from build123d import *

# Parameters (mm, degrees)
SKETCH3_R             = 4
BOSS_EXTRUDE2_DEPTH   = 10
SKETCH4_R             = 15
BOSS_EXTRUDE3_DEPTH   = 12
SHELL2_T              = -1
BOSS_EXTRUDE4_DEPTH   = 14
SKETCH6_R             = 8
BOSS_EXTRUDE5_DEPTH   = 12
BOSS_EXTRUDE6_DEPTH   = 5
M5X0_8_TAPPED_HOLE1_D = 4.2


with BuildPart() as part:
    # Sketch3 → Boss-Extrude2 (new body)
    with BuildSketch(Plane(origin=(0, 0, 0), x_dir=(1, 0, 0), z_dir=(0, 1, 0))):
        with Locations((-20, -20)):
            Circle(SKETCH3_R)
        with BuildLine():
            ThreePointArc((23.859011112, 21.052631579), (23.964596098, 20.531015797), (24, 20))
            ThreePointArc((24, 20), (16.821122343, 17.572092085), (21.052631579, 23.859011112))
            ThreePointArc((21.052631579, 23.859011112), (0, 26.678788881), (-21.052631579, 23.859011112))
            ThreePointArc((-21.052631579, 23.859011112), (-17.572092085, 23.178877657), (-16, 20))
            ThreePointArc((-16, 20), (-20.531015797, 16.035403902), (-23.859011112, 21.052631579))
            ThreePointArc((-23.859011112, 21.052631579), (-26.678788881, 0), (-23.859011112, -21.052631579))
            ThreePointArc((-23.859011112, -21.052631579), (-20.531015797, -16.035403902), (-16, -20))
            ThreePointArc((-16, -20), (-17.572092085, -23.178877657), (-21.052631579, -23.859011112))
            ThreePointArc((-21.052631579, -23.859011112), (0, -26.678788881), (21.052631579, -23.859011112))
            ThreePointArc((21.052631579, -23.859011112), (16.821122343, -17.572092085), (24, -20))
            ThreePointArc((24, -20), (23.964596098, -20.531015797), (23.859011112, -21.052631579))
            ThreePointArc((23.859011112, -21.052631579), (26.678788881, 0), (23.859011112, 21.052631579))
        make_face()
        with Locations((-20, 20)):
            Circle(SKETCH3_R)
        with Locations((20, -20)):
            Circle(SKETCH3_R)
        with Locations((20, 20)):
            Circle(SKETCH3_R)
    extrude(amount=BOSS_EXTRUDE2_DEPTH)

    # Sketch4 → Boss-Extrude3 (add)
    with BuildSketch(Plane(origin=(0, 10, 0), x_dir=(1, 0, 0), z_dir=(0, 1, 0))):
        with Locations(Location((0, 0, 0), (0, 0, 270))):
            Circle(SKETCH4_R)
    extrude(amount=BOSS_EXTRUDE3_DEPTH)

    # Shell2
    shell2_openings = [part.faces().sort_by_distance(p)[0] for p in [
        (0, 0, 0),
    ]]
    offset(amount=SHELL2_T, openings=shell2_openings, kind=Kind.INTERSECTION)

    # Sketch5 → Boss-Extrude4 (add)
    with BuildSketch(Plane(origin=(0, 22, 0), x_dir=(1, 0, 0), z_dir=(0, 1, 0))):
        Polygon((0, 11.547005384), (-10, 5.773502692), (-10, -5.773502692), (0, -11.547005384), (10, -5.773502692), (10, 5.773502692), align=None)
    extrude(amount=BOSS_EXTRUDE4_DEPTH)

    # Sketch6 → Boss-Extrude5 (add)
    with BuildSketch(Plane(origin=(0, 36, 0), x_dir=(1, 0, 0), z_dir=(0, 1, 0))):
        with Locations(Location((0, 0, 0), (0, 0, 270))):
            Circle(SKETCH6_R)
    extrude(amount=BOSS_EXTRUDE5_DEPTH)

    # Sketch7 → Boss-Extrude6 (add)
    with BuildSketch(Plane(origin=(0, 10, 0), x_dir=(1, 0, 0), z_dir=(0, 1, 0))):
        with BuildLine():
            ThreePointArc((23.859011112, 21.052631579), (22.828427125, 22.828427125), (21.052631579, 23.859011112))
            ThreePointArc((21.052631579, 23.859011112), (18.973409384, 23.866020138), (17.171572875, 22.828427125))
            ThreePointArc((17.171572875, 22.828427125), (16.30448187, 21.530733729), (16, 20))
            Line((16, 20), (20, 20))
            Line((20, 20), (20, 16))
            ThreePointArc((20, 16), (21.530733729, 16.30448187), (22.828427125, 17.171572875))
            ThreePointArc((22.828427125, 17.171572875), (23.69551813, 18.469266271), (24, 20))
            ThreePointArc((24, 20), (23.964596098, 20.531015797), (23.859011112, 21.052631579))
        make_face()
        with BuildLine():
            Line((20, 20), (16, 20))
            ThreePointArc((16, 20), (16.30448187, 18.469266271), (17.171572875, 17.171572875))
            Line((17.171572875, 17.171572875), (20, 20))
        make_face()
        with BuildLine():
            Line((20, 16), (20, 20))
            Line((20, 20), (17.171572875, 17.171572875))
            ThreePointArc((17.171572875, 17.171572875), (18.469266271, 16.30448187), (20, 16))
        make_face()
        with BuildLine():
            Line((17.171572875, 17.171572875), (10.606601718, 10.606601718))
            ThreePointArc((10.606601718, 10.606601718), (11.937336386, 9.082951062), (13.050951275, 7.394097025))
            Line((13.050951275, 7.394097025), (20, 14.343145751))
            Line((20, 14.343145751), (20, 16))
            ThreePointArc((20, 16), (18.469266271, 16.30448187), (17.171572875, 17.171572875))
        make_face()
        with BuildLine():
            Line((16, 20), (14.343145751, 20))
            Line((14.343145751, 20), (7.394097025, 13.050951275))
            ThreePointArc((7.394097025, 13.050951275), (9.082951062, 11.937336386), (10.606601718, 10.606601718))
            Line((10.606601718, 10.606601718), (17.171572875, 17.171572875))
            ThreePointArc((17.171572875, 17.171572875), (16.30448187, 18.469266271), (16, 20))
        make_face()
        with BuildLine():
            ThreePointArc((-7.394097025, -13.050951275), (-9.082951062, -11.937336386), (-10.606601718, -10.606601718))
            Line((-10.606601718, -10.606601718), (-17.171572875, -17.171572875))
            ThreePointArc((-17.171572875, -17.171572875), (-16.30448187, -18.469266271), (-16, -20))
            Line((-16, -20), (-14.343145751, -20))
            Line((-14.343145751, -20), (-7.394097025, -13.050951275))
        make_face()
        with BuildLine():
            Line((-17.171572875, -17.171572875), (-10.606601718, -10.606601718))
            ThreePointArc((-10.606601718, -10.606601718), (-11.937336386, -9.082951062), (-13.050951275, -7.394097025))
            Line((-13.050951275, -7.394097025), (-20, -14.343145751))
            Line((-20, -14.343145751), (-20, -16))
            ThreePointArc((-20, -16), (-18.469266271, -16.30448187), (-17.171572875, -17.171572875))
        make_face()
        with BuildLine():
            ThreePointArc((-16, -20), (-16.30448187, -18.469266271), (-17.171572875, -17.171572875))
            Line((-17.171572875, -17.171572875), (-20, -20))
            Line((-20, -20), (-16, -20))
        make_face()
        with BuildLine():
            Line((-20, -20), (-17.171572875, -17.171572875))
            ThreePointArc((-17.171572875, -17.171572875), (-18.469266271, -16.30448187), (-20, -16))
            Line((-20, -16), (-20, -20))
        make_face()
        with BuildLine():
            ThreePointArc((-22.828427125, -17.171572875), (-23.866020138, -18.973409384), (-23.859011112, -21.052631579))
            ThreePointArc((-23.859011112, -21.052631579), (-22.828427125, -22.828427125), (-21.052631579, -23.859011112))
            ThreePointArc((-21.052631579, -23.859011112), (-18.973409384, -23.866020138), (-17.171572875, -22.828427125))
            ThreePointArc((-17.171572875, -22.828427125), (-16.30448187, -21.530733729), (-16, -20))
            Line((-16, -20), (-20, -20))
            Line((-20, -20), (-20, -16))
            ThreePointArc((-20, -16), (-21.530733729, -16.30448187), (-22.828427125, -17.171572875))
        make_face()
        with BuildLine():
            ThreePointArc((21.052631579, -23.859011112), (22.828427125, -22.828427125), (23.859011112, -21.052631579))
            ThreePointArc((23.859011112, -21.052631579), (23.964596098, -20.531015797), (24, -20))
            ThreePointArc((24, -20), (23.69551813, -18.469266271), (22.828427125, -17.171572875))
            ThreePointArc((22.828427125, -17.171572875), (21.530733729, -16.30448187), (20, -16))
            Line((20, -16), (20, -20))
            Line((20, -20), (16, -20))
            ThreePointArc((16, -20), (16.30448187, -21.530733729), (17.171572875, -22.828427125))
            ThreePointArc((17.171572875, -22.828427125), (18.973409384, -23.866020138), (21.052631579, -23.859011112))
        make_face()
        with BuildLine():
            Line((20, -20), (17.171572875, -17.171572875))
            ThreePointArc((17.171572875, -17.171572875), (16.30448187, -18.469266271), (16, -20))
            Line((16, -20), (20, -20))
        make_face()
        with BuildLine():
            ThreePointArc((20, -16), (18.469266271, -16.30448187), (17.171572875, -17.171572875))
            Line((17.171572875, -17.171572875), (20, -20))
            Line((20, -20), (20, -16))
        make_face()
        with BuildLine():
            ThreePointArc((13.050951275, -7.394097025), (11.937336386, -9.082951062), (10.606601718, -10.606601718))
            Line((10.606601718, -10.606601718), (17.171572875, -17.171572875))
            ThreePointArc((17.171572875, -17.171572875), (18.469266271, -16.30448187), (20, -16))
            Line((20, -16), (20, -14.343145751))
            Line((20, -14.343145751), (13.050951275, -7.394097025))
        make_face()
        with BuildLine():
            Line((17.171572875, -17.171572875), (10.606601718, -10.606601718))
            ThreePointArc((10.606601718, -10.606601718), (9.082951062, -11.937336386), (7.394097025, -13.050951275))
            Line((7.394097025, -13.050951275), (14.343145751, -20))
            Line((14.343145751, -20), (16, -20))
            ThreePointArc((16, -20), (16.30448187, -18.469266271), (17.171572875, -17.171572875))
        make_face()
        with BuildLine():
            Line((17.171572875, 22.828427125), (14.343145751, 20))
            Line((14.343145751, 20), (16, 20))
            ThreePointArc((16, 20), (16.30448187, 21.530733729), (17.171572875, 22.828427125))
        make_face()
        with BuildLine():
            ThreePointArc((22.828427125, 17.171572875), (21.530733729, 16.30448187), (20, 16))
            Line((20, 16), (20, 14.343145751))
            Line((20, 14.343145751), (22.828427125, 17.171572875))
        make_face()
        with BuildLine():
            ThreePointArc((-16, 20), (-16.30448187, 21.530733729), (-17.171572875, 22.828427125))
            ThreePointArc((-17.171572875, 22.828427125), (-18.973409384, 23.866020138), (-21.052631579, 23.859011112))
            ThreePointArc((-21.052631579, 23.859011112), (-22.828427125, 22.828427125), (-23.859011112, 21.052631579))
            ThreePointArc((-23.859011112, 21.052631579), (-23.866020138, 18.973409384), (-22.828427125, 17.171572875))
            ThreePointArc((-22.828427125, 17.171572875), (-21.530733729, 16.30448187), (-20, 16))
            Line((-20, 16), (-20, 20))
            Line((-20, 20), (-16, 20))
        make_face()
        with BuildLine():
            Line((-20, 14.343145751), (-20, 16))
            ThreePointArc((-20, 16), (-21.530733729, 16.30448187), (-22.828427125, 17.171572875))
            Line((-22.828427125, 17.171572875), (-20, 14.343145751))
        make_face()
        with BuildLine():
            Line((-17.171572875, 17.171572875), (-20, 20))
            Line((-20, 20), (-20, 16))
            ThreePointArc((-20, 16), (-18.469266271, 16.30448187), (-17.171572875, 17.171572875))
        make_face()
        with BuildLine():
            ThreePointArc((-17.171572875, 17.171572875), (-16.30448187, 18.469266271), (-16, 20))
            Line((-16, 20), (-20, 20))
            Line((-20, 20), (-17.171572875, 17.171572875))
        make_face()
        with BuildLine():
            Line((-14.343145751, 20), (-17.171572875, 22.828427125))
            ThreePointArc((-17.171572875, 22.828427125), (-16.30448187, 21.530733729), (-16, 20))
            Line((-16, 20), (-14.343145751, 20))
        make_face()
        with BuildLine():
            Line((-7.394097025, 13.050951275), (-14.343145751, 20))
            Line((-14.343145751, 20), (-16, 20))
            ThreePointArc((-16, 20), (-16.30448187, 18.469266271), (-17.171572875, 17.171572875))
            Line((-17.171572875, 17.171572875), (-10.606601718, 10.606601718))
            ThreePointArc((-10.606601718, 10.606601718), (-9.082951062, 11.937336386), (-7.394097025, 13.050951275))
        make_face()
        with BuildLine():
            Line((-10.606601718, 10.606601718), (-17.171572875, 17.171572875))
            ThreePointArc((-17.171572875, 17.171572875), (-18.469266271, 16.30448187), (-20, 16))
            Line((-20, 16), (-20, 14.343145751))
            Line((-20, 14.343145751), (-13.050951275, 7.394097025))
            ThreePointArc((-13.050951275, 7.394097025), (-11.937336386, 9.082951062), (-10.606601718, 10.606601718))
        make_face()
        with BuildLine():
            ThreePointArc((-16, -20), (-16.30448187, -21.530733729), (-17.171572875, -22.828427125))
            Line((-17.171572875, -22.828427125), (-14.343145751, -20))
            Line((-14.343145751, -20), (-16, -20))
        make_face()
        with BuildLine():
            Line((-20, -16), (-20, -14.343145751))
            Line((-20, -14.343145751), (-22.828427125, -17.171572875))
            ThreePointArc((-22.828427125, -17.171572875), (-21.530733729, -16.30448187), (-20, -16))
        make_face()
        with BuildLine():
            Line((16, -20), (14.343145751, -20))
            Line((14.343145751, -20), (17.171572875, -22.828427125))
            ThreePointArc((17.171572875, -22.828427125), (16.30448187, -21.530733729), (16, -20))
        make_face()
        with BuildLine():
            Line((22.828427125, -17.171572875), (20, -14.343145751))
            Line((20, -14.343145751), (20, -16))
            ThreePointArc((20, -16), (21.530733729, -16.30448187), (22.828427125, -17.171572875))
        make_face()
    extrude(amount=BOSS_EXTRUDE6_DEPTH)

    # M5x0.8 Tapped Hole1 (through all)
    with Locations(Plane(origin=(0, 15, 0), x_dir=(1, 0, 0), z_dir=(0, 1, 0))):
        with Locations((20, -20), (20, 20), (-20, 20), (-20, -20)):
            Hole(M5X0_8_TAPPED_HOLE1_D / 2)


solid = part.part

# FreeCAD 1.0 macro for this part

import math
import FreeCAD as App
import Part
import Sketcher

V = App.Vector
Q = App.Units.Quantity


def faces_at(feature, points):
    """Names of the faces that lie closest to the given points."""
    faces = feature.Shape.Faces
    near = lambda p: min(range(len(faces)), key=lambda i: faces[i].distToShape(Part.Vertex(*p))[0])
    return sorted({f"Face{near(p) + 1}" for p in points})


def add_polygon(sketch, points):
    """Adds a closed chain of lines whose ends are joined by coincident constraints."""
    first, n = sketch.GeometryCount, len(points)
    for a, b in zip(points, points[1:] + points[:1]):
        sketch.addGeometry(Part.LineSegment(App.Vector(*a, 0), App.Vector(*b, 0)), False)
    for i in range(n):
        sketch.addConstraint(Sketcher.Constraint("Coincident", first + i, 2, first + (i + 1) % n, 1))

doc = App.newDocument("Part")
params = doc.addObject("Spreadsheet::Sheet", "Params")
for row, (alias, value) in enumerate([
    ("sketch1_radius", "4 mm"),
    ("sketch1_radius2", "80 mm"),
    ("pad1_length", "10 mm"),
    ("sketch2_diameter", "30 mm"),
    ("pad2_length", "12 mm"),
    ("thickness_wall", "1 mm"),
    ("pad3_length", "14 mm"),
    ("sketch4_diameter", "16 mm"),
    ("pad4_length", "12 mm"),
    ("sketch5_radius", "4 mm"),
    ("sketch5_radius2", "15 mm"),
    ("pad5_length", "5 mm"),
    ("sketch6_diameter", "4.2 mm"),
    ("hole_diameter", "4.2 mm"),
], start=1):
    params.set(f"A{row}", alias)
    params.set(f"B{row}", "=" + value)
    params.setAlias(f"B{row}", alias)

body = doc.addObject("PartDesign::Body", "Body")

# Sketch on XZ plane
sketch1 = body.newObject("Sketcher::SketchObject", "Sketch")
sketch1.AttachmentSupport = (doc.getObject("XZ_Plane"), [""])
sketch1.MapMode = "FlatFace"
sketch1.addGeometry(Part.ArcOfCircle(Part.Circle(V(-20, 20, 0), V(0, 0, 1), 4), math.radians(105.257523), math.radians(164.742477)), False)
sketch1.addGeometry(Part.ArcOfCircle(Part.Circle(V(0, -53.321211, 0), V(0, 0, 1), 80), math.radians(74.742477), math.radians(105.257523)), False)
sketch1.addGeometry(Part.ArcOfCircle(Part.Circle(V(20, 20, 0), V(0, 0, 1), 4), math.radians(15.257523), math.radians(74.742477)), False)
sketch1.addGeometry(Part.ArcOfCircle(Part.Circle(V(-53.321211, 0, 0), V(0, 0, 1), 80), math.radians(-15.257523), math.radians(15.257523)), False)
sketch1.addGeometry(Part.ArcOfCircle(Part.Circle(V(20, -20, 0), V(0, 0, 1), 4), math.radians(-74.742477), math.radians(-15.257523)), False)
sketch1.addGeometry(Part.ArcOfCircle(Part.Circle(V(0, 53.321211, 0), V(0, 0, 1), 80), math.radians(-105.257523), math.radians(-74.742477)), False)
sketch1.addGeometry(Part.ArcOfCircle(Part.Circle(V(-20, -20, 0), V(0, 0, 1), 4), math.radians(-164.742477), math.radians(-105.257523)), False)
sketch1.addGeometry(Part.ArcOfCircle(Part.Circle(V(53.321211, 0, 0), V(0, 0, 1), 80), math.radians(164.742477), math.radians(195.257523)), False)
sketch1.addConstraint(Sketcher.Constraint("Tangent", 0, 1, 1, 2))
sketch1.addConstraint(Sketcher.Constraint("Tangent", 1, 1, 2, 2))
sketch1.addConstraint(Sketcher.Constraint("Tangent", 2, 1, 3, 2))
sketch1.addConstraint(Sketcher.Constraint("Tangent", 3, 1, 4, 2))
sketch1.addConstraint(Sketcher.Constraint("Tangent", 4, 1, 5, 2))
sketch1.addConstraint(Sketcher.Constraint("Tangent", 5, 1, 6, 2))
sketch1.addConstraint(Sketcher.Constraint("Tangent", 6, 1, 7, 2))
sketch1.addConstraint(Sketcher.Constraint("Tangent", 7, 1, 0, 2))
sketch1.addConstraint(Sketcher.Constraint("Equal", 0, 2))
sketch1.addConstraint(Sketcher.Constraint("Equal", 1, 3))
sketch1.addConstraint(Sketcher.Constraint("Equal", 2, 4))
sketch1.addConstraint(Sketcher.Constraint("Equal", 3, 5))
sketch1.addConstraint(Sketcher.Constraint("Equal", 4, 6))
sketch1.addConstraint(Sketcher.Constraint("Equal", 5, 7))
sketch1.addConstraint(Sketcher.Constraint("Symmetric", 0, 3, 4, 3, -1, 1))
sketch1.addConstraint(Sketcher.Constraint("Symmetric", 2, 3, 6, 3, -1, 1))
sketch1.addConstraint(Sketcher.Constraint("Symmetric", 0, 3, 2, 3, -2))
sketch1.addConstraint(Sketcher.Constraint("Radius", 0, 4.0))
sketch1.addConstraint(Sketcher.Constraint("Radius", 1, 80.0))
sketch1.addConstraint(Sketcher.Constraint("DistanceX", 0, 3, -1, 1, 20.0))
sketch1.addConstraint(Sketcher.Constraint("DistanceY", -1, 1, 0, 3, 20.0))
sketch1.setExpression("Constraints[17]", "Params.sketch1_radius")
sketch1.setExpression("Constraints[18]", "Params.sketch1_radius2")
pad1 = body.newObject("PartDesign::Pad", "Pad")
pad1.Profile = sketch1
pad1.setExpression("Length", "Params.pad1_length")
pad1.Reversed = True

# Sketch on XZ plane
sketch2 = body.newObject("Sketcher::SketchObject", "Sketch001")
sketch2.AttachmentSupport = (doc.getObject("XZ_Plane"), [""])
sketch2.MapMode = "FlatFace"
sketch2.AttachmentOffset = App.Placement(V(0, 0, -10), App.Rotation())
sketch2.addGeometry(Part.Circle(V(0, 0, 0), V(0, 0, 1), 15), False)
sketch2.addConstraint(Sketcher.Constraint("Coincident", 0, 3, -1, 1))
sketch2.addConstraint(Sketcher.Constraint("Diameter", 0, 30.0))
sketch2.setExpression("Constraints[1]", "Params.sketch2_diameter")
pad2 = body.newObject("PartDesign::Pad", "Pad001")
pad2.Profile = sketch2
pad2.setExpression("Length", "Params.pad2_length")
pad2.Reversed = True
doc.recompute()

thickness = body.newObject("PartDesign::Thickness", "Thickness")
thickness.Base = (pad2, faces_at(pad2, [(0, 0, 0)]))
thickness.setExpression("Value", "Params.thickness_wall")
thickness.Reversed = True
thickness.Join = "Intersection"

# Sketch on XZ plane
sketch3 = body.newObject("Sketcher::SketchObject", "Sketch002")
sketch3.AttachmentSupport = (doc.getObject("XZ_Plane"), [""])
sketch3.MapMode = "FlatFace"
sketch3.AttachmentOffset = App.Placement(V(0, 0, -22), App.Rotation())
add_polygon(sketch3, [(0, -11.547005), (-10, -5.773503), (-10, 5.773503), (0, 11.547005), (10, 5.773503), (10, -5.773503)])  # lines 0-5
sketch3.addConstraint(Sketcher.Constraint("Vertical", 1))
sketch3.addConstraint(Sketcher.Constraint("Vertical", 4))
sketch3.addConstraint(Sketcher.Constraint("Symmetric", 0, 2, 3, 2, -1, 1))
sketch3.addConstraint(Sketcher.Constraint("Symmetric", 2, 2, 5, 2, -1, 1))
sketch3.addConstraint(Sketcher.Constraint("PointOnObject", 2, 2, -2))
sketch3.addConstraint(Sketcher.Constraint("Parallel", 2, 5))
sketch3.addConstraint(Sketcher.Constraint("Horizontal", 1, 2, 3, 2))
sketch3.addConstraint(Sketcher.Constraint("Angle", 0, Q("150 deg")))
sketch3.addConstraint(Sketcher.Constraint("DistanceX", 0, 2, -1, 1, 10.0))
sketch3.addConstraint(Sketcher.Constraint("DistanceY", 1, 1, 1, 2, 11.547005))
pad3 = body.newObject("PartDesign::Pad", "Pad002")
pad3.Profile = sketch3
pad3.setExpression("Length", "Params.pad3_length")
pad3.Reversed = True

# Sketch on XZ plane
sketch4 = body.newObject("Sketcher::SketchObject", "Sketch003")
sketch4.AttachmentSupport = (doc.getObject("XZ_Plane"), [""])
sketch4.MapMode = "FlatFace"
sketch4.AttachmentOffset = App.Placement(V(0, 0, -36), App.Rotation())
sketch4.addGeometry(Part.Circle(V(0, 0, 0), V(0, 0, 1), 8), False)
sketch4.addConstraint(Sketcher.Constraint("Coincident", 0, 3, -1, 1))
sketch4.addConstraint(Sketcher.Constraint("Diameter", 0, 16.0))
sketch4.setExpression("Constraints[1]", "Params.sketch4_diameter")
pad4 = body.newObject("PartDesign::Pad", "Pad003")
pad4.Profile = sketch4
pad4.setExpression("Length", "Params.pad4_length")
pad4.Reversed = True

# Sketch on XZ plane
sketch5 = body.newObject("Sketcher::SketchObject", "Sketch004")
sketch5.AttachmentSupport = (doc.getObject("XZ_Plane"), [""])
sketch5.MapMode = "FlatFace"
sketch5.AttachmentOffset = App.Placement(V(0, 0, -10), App.Rotation())
sketch5.addGeometry(Part.ArcOfCircle(Part.Circle(V(20, -20, 0), V(0, 0, 1), 4), math.radians(-74.742477), math.radians(-15.257523)), False)
sketch5.addGeometry(Part.ArcOfCircle(Part.Circle(V(20, -20, 0), V(0, 0, 1), 4), math.radians(-135), math.radians(-74.742477)), False)
sketch5.addGeometry(Part.LineSegment(V(17.171573, -22.828427, 0), V(14.343146, -20, 0)), False)
sketch5.addGeometry(Part.LineSegment(V(14.343146, -20, 0), V(7.394097, -13.050951, 0)), False)
sketch5.addGeometry(Part.ArcOfCircle(Part.Circle(V(0, 0, 0), V(0, 0, 1), 15), math.radians(-60.46601), math.radians(-45)), False)
sketch5.addGeometry(Part.ArcOfCircle(Part.Circle(V(0, 0, 0), V(0, 0, 1), 15), math.radians(-45), math.radians(-29.53399)), False)
sketch5.addGeometry(Part.LineSegment(V(13.050951, -7.394097, 0), V(20, -14.343146, 0)), False)
sketch5.addGeometry(Part.LineSegment(V(20, -14.343146, 0), V(22.828427, -17.171573, 0)), False)
sketch5.addGeometry(Part.ArcOfCircle(Part.Circle(V(20, -20, 0), V(0, 0, 1), 4), math.radians(0), math.radians(45)), False)
sketch5.addGeometry(Part.ArcOfCircle(Part.Circle(V(20, -20, 0), V(0, 0, 1), 4), math.radians(-15.257523), math.radians(0)), False)
sketch5.addGeometry(Part.ArcOfCircle(Part.Circle(V(0, 0, 0), V(0, 0, 1), 15), math.radians(119.53399), math.radians(135)), False)
sketch5.addGeometry(Part.ArcOfCircle(Part.Circle(V(0, 0, 0), V(0, 0, 1), 15), math.radians(135), math.radians(150.46601)), False)
sketch5.addGeometry(Part.LineSegment(V(-13.050951, 7.394097, 0), V(-20, 14.343146, 0)), False)
sketch5.addGeometry(Part.LineSegment(V(-20, 14.343146, 0), V(-22.828427, 17.171573, 0)), False)
sketch5.addGeometry(Part.ArcOfCircle(Part.Circle(V(-20, 20, 0), V(0, 0, 1), 4), math.radians(164.742477), math.radians(225)), False)
sketch5.addGeometry(Part.ArcOfCircle(Part.Circle(V(-20, 20, 0), V(0, 0, 1), 4), math.radians(105.257523), math.radians(164.742477)), False)
sketch5.addGeometry(Part.ArcOfCircle(Part.Circle(V(-20, 20, 0), V(0, 0, 1), 4), math.radians(45), math.radians(105.257523)), False)
sketch5.addGeometry(Part.LineSegment(V(-17.171573, 22.828427, 0), V(-14.343146, 20, 0)), False)
sketch5.addGeometry(Part.LineSegment(V(-14.343146, 20, 0), V(-7.394097, 13.050951, 0)), False)
sketch5.addGeometry(Part.ArcOfCircle(Part.Circle(V(20, 20, 0), V(0, 0, 1), 4), math.radians(15.257523), math.radians(74.742477)), False)
sketch5.addGeometry(Part.ArcOfCircle(Part.Circle(V(20, 20, 0), V(0, 0, 1), 4), math.radians(0), math.radians(15.257523)), False)
sketch5.addGeometry(Part.ArcOfCircle(Part.Circle(V(20, 20, 0), V(0, 0, 1), 4), math.radians(-45), math.radians(0)), False)
sketch5.addGeometry(Part.LineSegment(V(22.828427, 17.171573, 0), V(20, 14.343146, 0)), False)
sketch5.addGeometry(Part.LineSegment(V(20, 14.343146, 0), V(13.050951, 7.394097, 0)), False)
sketch5.addGeometry(Part.ArcOfCircle(Part.Circle(V(0, 0, 0), V(0, 0, 1), 15), math.radians(29.53399), math.radians(45)), False)
sketch5.addGeometry(Part.ArcOfCircle(Part.Circle(V(0, 0, 0), V(0, 0, 1), 15), math.radians(45), math.radians(60.46601)), False)
sketch5.addGeometry(Part.LineSegment(V(7.394097, 13.050951, 0), V(14.343146, 20, 0)), False)
sketch5.addGeometry(Part.LineSegment(V(14.343146, 20, 0), V(17.171573, 22.828427, 0)), False)
sketch5.addGeometry(Part.ArcOfCircle(Part.Circle(V(20, 20, 0), V(0, 0, 1), 4), math.radians(74.742477), math.radians(135)), False)
sketch5.addGeometry(Part.ArcOfCircle(Part.Circle(V(-20, -20, 0), V(0, 0, 1), 4), math.radians(-105.257523), math.radians(-45)), False)
sketch5.addGeometry(Part.ArcOfCircle(Part.Circle(V(-20, -20, 0), V(0, 0, 1), 4), math.radians(-164.742477), math.radians(-105.257523)), False)
sketch5.addGeometry(Part.ArcOfCircle(Part.Circle(V(-20, -20, 0), V(0, 0, 1), 4), math.radians(135), math.radians(195.257523)), False)
sketch5.addGeometry(Part.LineSegment(V(-22.828427, -17.171573, 0), V(-20, -14.343146, 0)), False)
sketch5.addGeometry(Part.LineSegment(V(-20, -14.343146, 0), V(-13.050951, -7.394097, 0)), False)
sketch5.addGeometry(Part.ArcOfCircle(Part.Circle(V(0, 0, 0), V(0, 0, 1), 15), math.radians(-150.46601), math.radians(-135)), False)
sketch5.addGeometry(Part.ArcOfCircle(Part.Circle(V(0, 0, 0), V(0, 0, 1), 15), math.radians(-135), math.radians(-119.53399)), False)
sketch5.addGeometry(Part.LineSegment(V(-7.394097, -13.050951, 0), V(-14.343146, -20, 0)), False)
sketch5.addGeometry(Part.LineSegment(V(-14.343146, -20, 0), V(-17.171573, -22.828427, 0)), False)
sketch5.addConstraint(Sketcher.Constraint("Tangent", 0, 1, 1, 2))
sketch5.addConstraint(Sketcher.Constraint("Tangent", 1, 1, 2, 1))
sketch5.addConstraint(Sketcher.Constraint("Coincident", 2, 2, 3, 1))
sketch5.addConstraint(Sketcher.Constraint("Coincident", 3, 2, 4, 1))
sketch5.addConstraint(Sketcher.Constraint("Tangent", 4, 2, 5, 1))
sketch5.addConstraint(Sketcher.Constraint("Coincident", 5, 2, 6, 1))
sketch5.addConstraint(Sketcher.Constraint("Coincident", 6, 2, 7, 1))
sketch5.addConstraint(Sketcher.Constraint("Tangent", 7, 2, 8, 2))
sketch5.addConstraint(Sketcher.Constraint("Tangent", 8, 1, 9, 2))
sketch5.addConstraint(Sketcher.Constraint("Tangent", 9, 1, 0, 2))
sketch5.addConstraint(Sketcher.Constraint("Tangent", 10, 2, 11, 1))
sketch5.addConstraint(Sketcher.Constraint("Coincident", 11, 2, 12, 1))
sketch5.addConstraint(Sketcher.Constraint("Coincident", 12, 2, 13, 1))
sketch5.addConstraint(Sketcher.Constraint("Tangent", 13, 2, 14, 2))
sketch5.addConstraint(Sketcher.Constraint("Tangent", 14, 1, 15, 2))
sketch5.addConstraint(Sketcher.Constraint("Tangent", 15, 1, 16, 2))
sketch5.addConstraint(Sketcher.Constraint("Tangent", 16, 1, 17, 1))
sketch5.addConstraint(Sketcher.Constraint("Coincident", 17, 2, 18, 1))
sketch5.addConstraint(Sketcher.Constraint("Coincident", 18, 2, 10, 1))
sketch5.addConstraint(Sketcher.Constraint("Tangent", 19, 1, 20, 2))
sketch5.addConstraint(Sketcher.Constraint("Tangent", 20, 1, 21, 2))
sketch5.addConstraint(Sketcher.Constraint("Tangent", 21, 1, 22, 1))
sketch5.addConstraint(Sketcher.Constraint("Coincident", 22, 2, 23, 1))
sketch5.addConstraint(Sketcher.Constraint("Coincident", 23, 2, 24, 1))
sketch5.addConstraint(Sketcher.Constraint("Tangent", 24, 2, 25, 1))
sketch5.addConstraint(Sketcher.Constraint("Coincident", 25, 2, 26, 1))
sketch5.addConstraint(Sketcher.Constraint("Coincident", 26, 2, 27, 1))
sketch5.addConstraint(Sketcher.Constraint("Tangent", 27, 2, 28, 2))
sketch5.addConstraint(Sketcher.Constraint("Tangent", 28, 1, 19, 2))
sketch5.addConstraint(Sketcher.Constraint("Tangent", 29, 1, 30, 2))
sketch5.addConstraint(Sketcher.Constraint("Tangent", 30, 1, 31, 2))
sketch5.addConstraint(Sketcher.Constraint("Tangent", 31, 1, 32, 1))
sketch5.addConstraint(Sketcher.Constraint("Coincident", 32, 2, 33, 1))
sketch5.addConstraint(Sketcher.Constraint("Coincident", 33, 2, 34, 1))
sketch5.addConstraint(Sketcher.Constraint("Tangent", 34, 2, 35, 1))
sketch5.addConstraint(Sketcher.Constraint("Coincident", 35, 2, 36, 1))
sketch5.addConstraint(Sketcher.Constraint("Coincident", 36, 2, 37, 1))
sketch5.addConstraint(Sketcher.Constraint("Tangent", 37, 2, 29, 2))
sketch5.addConstraint(Sketcher.Constraint("Coincident", 4, 3, -1, 1))
sketch5.addConstraint(Sketcher.Constraint("Coincident", 10, 3, -1, 1))
sketch5.addConstraint(Sketcher.Constraint("Coincident", 24, 3, -1, 1))
sketch5.addConstraint(Sketcher.Constraint("Coincident", 34, 3, -1, 1))
sketch5.addConstraint(Sketcher.Constraint("Coincident", 8, 3, 0, 3))
sketch5.addConstraint(Sketcher.Constraint("Coincident", 16, 3, 14, 3))
sketch5.addConstraint(Sketcher.Constraint("Coincident", 21, 3, 19, 3))
sketch5.addConstraint(Sketcher.Constraint("Coincident", 31, 3, 29, 3))
sketch5.addConstraint(Sketcher.Constraint("Equal", 0, 1))
sketch5.addConstraint(Sketcher.Constraint("Equal", 4, 5))
sketch5.addConstraint(Sketcher.Constraint("Equal", 5, 10))
sketch5.addConstraint(Sketcher.Constraint("Equal", 10, 11))
sketch5.addConstraint(Sketcher.Constraint("Equal", 9, 14))
sketch5.addConstraint(Sketcher.Constraint("Equal", 16, 19))
sketch5.addConstraint(Sketcher.Constraint("Equal", 11, 24))
sketch5.addConstraint(Sketcher.Constraint("Equal", 24, 25))
sketch5.addConstraint(Sketcher.Constraint("Equal", 21, 28))
sketch5.addConstraint(Sketcher.Constraint("Equal", 28, 29))
sketch5.addConstraint(Sketcher.Constraint("Equal", 25, 34))
sketch5.addConstraint(Sketcher.Constraint("Equal", 34, 35))
sketch5.addConstraint(Sketcher.Constraint("Symmetric", 0, 3, 14, 3, -1, 1))
sketch5.addConstraint(Sketcher.Constraint("Symmetric", 19, 3, 29, 3, -1, 1))
sketch5.addConstraint(Sketcher.Constraint("Symmetric", 6, 2, 12, 2, -1, 1))
sketch5.addConstraint(Sketcher.Constraint("Symmetric", 2, 2, 17, 2, -1, 1))
sketch5.addConstraint(Sketcher.Constraint("Symmetric", 22, 2, 32, 2, -1, 1))
sketch5.addConstraint(Sketcher.Constraint("Symmetric", 26, 2, 36, 2, -1, 1))
sketch5.addConstraint(Sketcher.Constraint("Symmetric", 14, 3, 19, 3, -2))
sketch5.addConstraint(Sketcher.Constraint("Symmetric", 12, 2, 22, 2, -2))
sketch5.addConstraint(Sketcher.Constraint("Symmetric", 17, 2, 26, 2, -2))
sketch5.addConstraint(Sketcher.Constraint("Parallel", 2, 3))
sketch5.addConstraint(Sketcher.Constraint("Parallel", 3, 6))
sketch5.addConstraint(Sketcher.Constraint("Parallel", 6, 7))
sketch5.addConstraint(Sketcher.Constraint("Parallel", 7, 12))
sketch5.addConstraint(Sketcher.Constraint("Parallel", 17, 18))
sketch5.addConstraint(Sketcher.Constraint("Perpendicular", 18, 22))
sketch5.addConstraint(Sketcher.Constraint("Parallel", 22, 23))
sketch5.addConstraint(Sketcher.Constraint("Parallel", 23, 26))
sketch5.addConstraint(Sketcher.Constraint("Parallel", 32, 33))
sketch5.addConstraint(Sketcher.Constraint("Parallel", 33, 36))
sketch5.addConstraint(Sketcher.Constraint("Horizontal", 31, 3, 2, 2))
sketch5.addConstraint(Sketcher.Constraint("Horizontal", 2, 2, 8, 1))
sketch5.addConstraint(Sketcher.Constraint("Horizontal", 14, 1, 19, 1))
sketch5.addConstraint(Sketcher.Constraint("Horizontal", 17, 2, 20, 1))
sketch5.addConstraint(Sketcher.Constraint("Horizontal", 10, 2, 24, 2))
sketch5.addConstraint(Sketcher.Constraint("Horizontal", 15, 1, 28, 1))
sketch5.addConstraint(Sketcher.Constraint("Horizontal", 0, 1, 29, 1))
sketch5.addConstraint(Sketcher.Constraint("Horizontal", 9, 1, 30, 1))
sketch5.addConstraint(Sketcher.Constraint("Horizontal", 4, 2, 34, 2))
sketch5.addConstraint(Sketcher.Constraint("Vertical", 28, 3, 6, 2))
sketch5.addConstraint(Sketcher.Constraint("Vertical", 9, 1, 19, 1))
sketch5.addConstraint(Sketcher.Constraint("Vertical", 4, 2, 24, 2))
sketch5.addConstraint(Sketcher.Constraint("Vertical", 0, 1, 28, 1))
sketch5.addConstraint(Sketcher.Constraint("Equal", 3, 6))
sketch5.addConstraint(Sketcher.Constraint("Radius", 0, 4.0))
sketch5.addConstraint(Sketcher.Constraint("Radius", 4, 15.0))
sketch5.addConstraint(Sketcher.Constraint("DistanceX", -1, 1, 0, 3, 20.0))
sketch5.addConstraint(Sketcher.Constraint("DistanceX", -1, 1, 4, 2, 10.606602))
sketch5.addConstraint(Sketcher.Constraint("DistanceX", -1, 1, 0, 1, 21.052632))
sketch5.addConstraint(Sketcher.Constraint("DistanceX", -1, 1, 9, 1, 23.859011))
sketch5.setExpression("Constraints[91]", "Params.sketch5_radius")
sketch5.setExpression("Constraints[92]", "Params.sketch5_radius2")
pad5 = body.newObject("PartDesign::Pad", "Pad004")
pad5.Profile = sketch5
pad5.setExpression("Length", "Params.pad5_length")
pad5.Reversed = True

# Sketch on XZ plane
sketch6 = body.newObject("Sketcher::SketchObject", "Sketch005")
sketch6.AttachmentSupport = (doc.getObject("XZ_Plane"), [""])
sketch6.MapMode = "FlatFace"
sketch6.AttachmentOffset = App.Placement(V(0, 0, -15), App.Rotation())
sketch6.addGeometry(Part.Circle(V(20, 20, 0), V(0, 0, 1), 2.1), False)
sketch6.addGeometry(Part.Circle(V(20, -20, 0), V(0, 0, 1), 2.1), False)
sketch6.addGeometry(Part.Circle(V(-20, -20, 0), V(0, 0, 1), 2.1), False)
sketch6.addGeometry(Part.Circle(V(-20, 20, 0), V(0, 0, 1), 2.1), False)
sketch6.addConstraint(Sketcher.Constraint("Equal", 0, 1))
sketch6.addConstraint(Sketcher.Constraint("Equal", 1, 2))
sketch6.addConstraint(Sketcher.Constraint("Equal", 2, 3))
sketch6.addConstraint(Sketcher.Constraint("Symmetric", 0, 3, 2, 3, -1, 1))
sketch6.addConstraint(Sketcher.Constraint("Symmetric", 1, 3, 3, 3, -1, 1))
sketch6.addConstraint(Sketcher.Constraint("Symmetric", 1, 3, 2, 3, -2))
sketch6.addConstraint(Sketcher.Constraint("Diameter", 0, 4.2))
sketch6.addConstraint(Sketcher.Constraint("DistanceX", -1, 1, 0, 3, 20.0))
sketch6.addConstraint(Sketcher.Constraint("DistanceY", -1, 1, 0, 3, 20.0))
sketch6.setExpression("Constraints[6]", "Params.sketch6_diameter")
doc.recompute()
hole = body.newObject("PartDesign::Hole", "Hole")
hole.Profile = sketch6
hole.ThreadType = "None"
hole.setExpression("Diameter", "Params.hole_diameter")
hole.DepthType = "ThroughAll"
hole.Reversed = True

doc.recompute()
